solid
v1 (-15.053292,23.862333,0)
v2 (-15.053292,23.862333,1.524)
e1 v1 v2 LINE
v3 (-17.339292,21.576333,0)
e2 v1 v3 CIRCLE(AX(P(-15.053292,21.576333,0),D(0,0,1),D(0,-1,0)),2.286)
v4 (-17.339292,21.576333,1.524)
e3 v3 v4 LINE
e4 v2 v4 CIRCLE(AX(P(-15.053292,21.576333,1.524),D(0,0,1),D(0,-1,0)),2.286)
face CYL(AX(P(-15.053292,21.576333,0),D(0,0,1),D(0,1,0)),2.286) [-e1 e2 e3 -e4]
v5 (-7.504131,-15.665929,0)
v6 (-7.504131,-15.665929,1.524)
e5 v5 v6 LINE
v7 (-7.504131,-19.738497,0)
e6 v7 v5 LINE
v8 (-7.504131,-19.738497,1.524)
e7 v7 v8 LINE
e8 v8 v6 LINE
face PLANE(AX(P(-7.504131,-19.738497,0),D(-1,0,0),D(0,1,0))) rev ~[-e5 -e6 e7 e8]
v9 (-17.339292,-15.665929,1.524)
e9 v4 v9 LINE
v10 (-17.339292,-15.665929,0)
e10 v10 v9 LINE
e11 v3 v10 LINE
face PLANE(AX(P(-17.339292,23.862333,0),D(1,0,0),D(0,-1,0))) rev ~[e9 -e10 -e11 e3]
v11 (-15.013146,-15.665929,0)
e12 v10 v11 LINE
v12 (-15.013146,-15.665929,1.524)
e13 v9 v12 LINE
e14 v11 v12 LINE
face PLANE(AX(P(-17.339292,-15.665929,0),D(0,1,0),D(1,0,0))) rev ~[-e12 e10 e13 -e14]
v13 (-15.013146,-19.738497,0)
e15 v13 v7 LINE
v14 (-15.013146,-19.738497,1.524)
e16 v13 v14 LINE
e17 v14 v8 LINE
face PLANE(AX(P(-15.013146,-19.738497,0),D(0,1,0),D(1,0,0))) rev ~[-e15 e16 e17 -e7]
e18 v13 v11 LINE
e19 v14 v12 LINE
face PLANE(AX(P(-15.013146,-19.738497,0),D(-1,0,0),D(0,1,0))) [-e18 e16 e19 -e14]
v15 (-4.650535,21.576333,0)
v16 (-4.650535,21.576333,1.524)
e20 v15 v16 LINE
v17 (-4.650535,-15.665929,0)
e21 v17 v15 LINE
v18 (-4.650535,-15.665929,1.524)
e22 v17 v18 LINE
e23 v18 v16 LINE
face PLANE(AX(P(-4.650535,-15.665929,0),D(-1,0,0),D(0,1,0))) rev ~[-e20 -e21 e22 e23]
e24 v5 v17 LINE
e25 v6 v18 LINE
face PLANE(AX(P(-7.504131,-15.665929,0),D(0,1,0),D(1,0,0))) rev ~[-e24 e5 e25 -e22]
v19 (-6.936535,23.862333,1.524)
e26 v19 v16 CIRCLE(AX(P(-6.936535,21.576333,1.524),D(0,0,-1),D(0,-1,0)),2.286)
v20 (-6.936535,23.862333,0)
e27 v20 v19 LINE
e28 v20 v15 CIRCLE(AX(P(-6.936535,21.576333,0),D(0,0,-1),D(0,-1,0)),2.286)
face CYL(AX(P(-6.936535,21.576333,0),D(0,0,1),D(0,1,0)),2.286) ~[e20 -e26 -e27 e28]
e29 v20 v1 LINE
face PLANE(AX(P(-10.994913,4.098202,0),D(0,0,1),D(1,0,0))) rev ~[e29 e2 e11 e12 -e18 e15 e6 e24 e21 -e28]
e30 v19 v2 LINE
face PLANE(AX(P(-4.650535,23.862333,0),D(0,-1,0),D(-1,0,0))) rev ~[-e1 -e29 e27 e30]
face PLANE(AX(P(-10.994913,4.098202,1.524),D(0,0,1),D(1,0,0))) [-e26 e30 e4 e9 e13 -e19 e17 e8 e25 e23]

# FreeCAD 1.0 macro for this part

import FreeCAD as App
import Part
import Sketcher
Q = App.Units.Quantity


def edges_at(feature, points):
    """Names of the edges that pass closest to the given points."""
    edges = feature.Shape.Edges
    near = lambda p: min(range(len(edges)), key=lambda i: edges[i].distToShape(Part.Vertex(*p))[0])
    return sorted({f"Edge{near(p) + 1}" for p in points})

doc = App.newDocument("Part")
body = doc.addObject("PartDesign::Body", "Body")

sketch1 = body.newObject("Sketcher::SketchObject", "Sketch")
sketch1.AttachmentSupport = (doc.getObject("XY_Plane"), [""])
sketch1.MapMode = "FlatFace"
sketch1.addGeometry([
    Part.LineSegment(App.Vector(-4.7, 23.9, 0), App.Vector(-17.3, 23.9, 0)),
    Part.LineSegment(App.Vector(-17.3, 23.9, 0), App.Vector(-17.3, -15.7, 0)),
    Part.LineSegment(App.Vector(-17.3, -15.7, 0), App.Vector(-15, -15.7, 0)),
    Part.LineSegment(App.Vector(-15, -15.7, 0), App.Vector(-15, -19.7, 0)),
    Part.LineSegment(App.Vector(-15, -19.7, 0), App.Vector(-7.5, -19.7, 0)),
    Part.LineSegment(App.Vector(-7.5, -19.7, 0), App.Vector(-7.5, -15.7, 0)),
    Part.LineSegment(App.Vector(-7.5, -15.7, 0), App.Vector(-4.7, -15.7, 0)),
    Part.LineSegment(App.Vector(-4.7, -15.7, 0), App.Vector(-4.7, 23.9, 0)),
], False)
sketch1.addConstraint([
    Sketcher.Constraint("Coincident", 0, 2, 1, 1),
    Sketcher.Constraint("Coincident", 1, 2, 2, 1),
    Sketcher.Constraint("Coincident", 2, 2, 3, 1),
    Sketcher.Constraint("Coincident", 3, 2, 4, 1),
    Sketcher.Constraint("Coincident", 4, 2, 5, 1),
    Sketcher.Constraint("Coincident", 5, 2, 6, 1),
    Sketcher.Constraint("Coincident", 6, 2, 7, 1),
    Sketcher.Constraint("Coincident", 7, 2, 0, 1),
    Sketcher.Constraint("Horizontal", 0),
    Sketcher.Constraint("Vertical", 1),
    Sketcher.Constraint("Horizontal", 2),
    Sketcher.Constraint("Vertical", 3),
    Sketcher.Constraint("Horizontal", 4),
    Sketcher.Constraint("Vertical", 5),
    Sketcher.Constraint("Horizontal", 6),
    Sketcher.Constraint("Vertical", 7),
    Sketcher.Constraint("Horizontal", 2, 2, 5, 2),
    Sketcher.Constraint("DistanceY", 1, 2, 1, 1, 39.528262),
    Sketcher.Constraint("DistanceX", 0, 2, 0, 1, 12.688757),
    Sketcher.Constraint("DistanceX", 2, 1, 2, 2, 2.326146),
    Sketcher.Constraint("DistanceX", 4, 1, 4, 2, 7.509015),
    Sketcher.Constraint("DistanceY", 3, 2, 3, 1, 4.072568),
    Sketcher.Constraint("DistanceY", 1, 2, -1, 1, 15.665929),
    Sketcher.Constraint("DistanceX", 4, 2, -1, 1, 7.504131),
])
pad1 = body.newObject("PartDesign::Pad", "Pad")
pad1.Profile = sketch1
pad1.Length = Q("0.06 in")
doc.recompute()

fillet = body.newObject("PartDesign::Fillet", "Fillet")
fillet.Base = (pad1, edges_at(pad1, [(-4.651, 23.862, 0.762), (-17.339, 23.862, 0.762)]))
fillet.Radius = Q("0.09 in")

doc.recompute()
